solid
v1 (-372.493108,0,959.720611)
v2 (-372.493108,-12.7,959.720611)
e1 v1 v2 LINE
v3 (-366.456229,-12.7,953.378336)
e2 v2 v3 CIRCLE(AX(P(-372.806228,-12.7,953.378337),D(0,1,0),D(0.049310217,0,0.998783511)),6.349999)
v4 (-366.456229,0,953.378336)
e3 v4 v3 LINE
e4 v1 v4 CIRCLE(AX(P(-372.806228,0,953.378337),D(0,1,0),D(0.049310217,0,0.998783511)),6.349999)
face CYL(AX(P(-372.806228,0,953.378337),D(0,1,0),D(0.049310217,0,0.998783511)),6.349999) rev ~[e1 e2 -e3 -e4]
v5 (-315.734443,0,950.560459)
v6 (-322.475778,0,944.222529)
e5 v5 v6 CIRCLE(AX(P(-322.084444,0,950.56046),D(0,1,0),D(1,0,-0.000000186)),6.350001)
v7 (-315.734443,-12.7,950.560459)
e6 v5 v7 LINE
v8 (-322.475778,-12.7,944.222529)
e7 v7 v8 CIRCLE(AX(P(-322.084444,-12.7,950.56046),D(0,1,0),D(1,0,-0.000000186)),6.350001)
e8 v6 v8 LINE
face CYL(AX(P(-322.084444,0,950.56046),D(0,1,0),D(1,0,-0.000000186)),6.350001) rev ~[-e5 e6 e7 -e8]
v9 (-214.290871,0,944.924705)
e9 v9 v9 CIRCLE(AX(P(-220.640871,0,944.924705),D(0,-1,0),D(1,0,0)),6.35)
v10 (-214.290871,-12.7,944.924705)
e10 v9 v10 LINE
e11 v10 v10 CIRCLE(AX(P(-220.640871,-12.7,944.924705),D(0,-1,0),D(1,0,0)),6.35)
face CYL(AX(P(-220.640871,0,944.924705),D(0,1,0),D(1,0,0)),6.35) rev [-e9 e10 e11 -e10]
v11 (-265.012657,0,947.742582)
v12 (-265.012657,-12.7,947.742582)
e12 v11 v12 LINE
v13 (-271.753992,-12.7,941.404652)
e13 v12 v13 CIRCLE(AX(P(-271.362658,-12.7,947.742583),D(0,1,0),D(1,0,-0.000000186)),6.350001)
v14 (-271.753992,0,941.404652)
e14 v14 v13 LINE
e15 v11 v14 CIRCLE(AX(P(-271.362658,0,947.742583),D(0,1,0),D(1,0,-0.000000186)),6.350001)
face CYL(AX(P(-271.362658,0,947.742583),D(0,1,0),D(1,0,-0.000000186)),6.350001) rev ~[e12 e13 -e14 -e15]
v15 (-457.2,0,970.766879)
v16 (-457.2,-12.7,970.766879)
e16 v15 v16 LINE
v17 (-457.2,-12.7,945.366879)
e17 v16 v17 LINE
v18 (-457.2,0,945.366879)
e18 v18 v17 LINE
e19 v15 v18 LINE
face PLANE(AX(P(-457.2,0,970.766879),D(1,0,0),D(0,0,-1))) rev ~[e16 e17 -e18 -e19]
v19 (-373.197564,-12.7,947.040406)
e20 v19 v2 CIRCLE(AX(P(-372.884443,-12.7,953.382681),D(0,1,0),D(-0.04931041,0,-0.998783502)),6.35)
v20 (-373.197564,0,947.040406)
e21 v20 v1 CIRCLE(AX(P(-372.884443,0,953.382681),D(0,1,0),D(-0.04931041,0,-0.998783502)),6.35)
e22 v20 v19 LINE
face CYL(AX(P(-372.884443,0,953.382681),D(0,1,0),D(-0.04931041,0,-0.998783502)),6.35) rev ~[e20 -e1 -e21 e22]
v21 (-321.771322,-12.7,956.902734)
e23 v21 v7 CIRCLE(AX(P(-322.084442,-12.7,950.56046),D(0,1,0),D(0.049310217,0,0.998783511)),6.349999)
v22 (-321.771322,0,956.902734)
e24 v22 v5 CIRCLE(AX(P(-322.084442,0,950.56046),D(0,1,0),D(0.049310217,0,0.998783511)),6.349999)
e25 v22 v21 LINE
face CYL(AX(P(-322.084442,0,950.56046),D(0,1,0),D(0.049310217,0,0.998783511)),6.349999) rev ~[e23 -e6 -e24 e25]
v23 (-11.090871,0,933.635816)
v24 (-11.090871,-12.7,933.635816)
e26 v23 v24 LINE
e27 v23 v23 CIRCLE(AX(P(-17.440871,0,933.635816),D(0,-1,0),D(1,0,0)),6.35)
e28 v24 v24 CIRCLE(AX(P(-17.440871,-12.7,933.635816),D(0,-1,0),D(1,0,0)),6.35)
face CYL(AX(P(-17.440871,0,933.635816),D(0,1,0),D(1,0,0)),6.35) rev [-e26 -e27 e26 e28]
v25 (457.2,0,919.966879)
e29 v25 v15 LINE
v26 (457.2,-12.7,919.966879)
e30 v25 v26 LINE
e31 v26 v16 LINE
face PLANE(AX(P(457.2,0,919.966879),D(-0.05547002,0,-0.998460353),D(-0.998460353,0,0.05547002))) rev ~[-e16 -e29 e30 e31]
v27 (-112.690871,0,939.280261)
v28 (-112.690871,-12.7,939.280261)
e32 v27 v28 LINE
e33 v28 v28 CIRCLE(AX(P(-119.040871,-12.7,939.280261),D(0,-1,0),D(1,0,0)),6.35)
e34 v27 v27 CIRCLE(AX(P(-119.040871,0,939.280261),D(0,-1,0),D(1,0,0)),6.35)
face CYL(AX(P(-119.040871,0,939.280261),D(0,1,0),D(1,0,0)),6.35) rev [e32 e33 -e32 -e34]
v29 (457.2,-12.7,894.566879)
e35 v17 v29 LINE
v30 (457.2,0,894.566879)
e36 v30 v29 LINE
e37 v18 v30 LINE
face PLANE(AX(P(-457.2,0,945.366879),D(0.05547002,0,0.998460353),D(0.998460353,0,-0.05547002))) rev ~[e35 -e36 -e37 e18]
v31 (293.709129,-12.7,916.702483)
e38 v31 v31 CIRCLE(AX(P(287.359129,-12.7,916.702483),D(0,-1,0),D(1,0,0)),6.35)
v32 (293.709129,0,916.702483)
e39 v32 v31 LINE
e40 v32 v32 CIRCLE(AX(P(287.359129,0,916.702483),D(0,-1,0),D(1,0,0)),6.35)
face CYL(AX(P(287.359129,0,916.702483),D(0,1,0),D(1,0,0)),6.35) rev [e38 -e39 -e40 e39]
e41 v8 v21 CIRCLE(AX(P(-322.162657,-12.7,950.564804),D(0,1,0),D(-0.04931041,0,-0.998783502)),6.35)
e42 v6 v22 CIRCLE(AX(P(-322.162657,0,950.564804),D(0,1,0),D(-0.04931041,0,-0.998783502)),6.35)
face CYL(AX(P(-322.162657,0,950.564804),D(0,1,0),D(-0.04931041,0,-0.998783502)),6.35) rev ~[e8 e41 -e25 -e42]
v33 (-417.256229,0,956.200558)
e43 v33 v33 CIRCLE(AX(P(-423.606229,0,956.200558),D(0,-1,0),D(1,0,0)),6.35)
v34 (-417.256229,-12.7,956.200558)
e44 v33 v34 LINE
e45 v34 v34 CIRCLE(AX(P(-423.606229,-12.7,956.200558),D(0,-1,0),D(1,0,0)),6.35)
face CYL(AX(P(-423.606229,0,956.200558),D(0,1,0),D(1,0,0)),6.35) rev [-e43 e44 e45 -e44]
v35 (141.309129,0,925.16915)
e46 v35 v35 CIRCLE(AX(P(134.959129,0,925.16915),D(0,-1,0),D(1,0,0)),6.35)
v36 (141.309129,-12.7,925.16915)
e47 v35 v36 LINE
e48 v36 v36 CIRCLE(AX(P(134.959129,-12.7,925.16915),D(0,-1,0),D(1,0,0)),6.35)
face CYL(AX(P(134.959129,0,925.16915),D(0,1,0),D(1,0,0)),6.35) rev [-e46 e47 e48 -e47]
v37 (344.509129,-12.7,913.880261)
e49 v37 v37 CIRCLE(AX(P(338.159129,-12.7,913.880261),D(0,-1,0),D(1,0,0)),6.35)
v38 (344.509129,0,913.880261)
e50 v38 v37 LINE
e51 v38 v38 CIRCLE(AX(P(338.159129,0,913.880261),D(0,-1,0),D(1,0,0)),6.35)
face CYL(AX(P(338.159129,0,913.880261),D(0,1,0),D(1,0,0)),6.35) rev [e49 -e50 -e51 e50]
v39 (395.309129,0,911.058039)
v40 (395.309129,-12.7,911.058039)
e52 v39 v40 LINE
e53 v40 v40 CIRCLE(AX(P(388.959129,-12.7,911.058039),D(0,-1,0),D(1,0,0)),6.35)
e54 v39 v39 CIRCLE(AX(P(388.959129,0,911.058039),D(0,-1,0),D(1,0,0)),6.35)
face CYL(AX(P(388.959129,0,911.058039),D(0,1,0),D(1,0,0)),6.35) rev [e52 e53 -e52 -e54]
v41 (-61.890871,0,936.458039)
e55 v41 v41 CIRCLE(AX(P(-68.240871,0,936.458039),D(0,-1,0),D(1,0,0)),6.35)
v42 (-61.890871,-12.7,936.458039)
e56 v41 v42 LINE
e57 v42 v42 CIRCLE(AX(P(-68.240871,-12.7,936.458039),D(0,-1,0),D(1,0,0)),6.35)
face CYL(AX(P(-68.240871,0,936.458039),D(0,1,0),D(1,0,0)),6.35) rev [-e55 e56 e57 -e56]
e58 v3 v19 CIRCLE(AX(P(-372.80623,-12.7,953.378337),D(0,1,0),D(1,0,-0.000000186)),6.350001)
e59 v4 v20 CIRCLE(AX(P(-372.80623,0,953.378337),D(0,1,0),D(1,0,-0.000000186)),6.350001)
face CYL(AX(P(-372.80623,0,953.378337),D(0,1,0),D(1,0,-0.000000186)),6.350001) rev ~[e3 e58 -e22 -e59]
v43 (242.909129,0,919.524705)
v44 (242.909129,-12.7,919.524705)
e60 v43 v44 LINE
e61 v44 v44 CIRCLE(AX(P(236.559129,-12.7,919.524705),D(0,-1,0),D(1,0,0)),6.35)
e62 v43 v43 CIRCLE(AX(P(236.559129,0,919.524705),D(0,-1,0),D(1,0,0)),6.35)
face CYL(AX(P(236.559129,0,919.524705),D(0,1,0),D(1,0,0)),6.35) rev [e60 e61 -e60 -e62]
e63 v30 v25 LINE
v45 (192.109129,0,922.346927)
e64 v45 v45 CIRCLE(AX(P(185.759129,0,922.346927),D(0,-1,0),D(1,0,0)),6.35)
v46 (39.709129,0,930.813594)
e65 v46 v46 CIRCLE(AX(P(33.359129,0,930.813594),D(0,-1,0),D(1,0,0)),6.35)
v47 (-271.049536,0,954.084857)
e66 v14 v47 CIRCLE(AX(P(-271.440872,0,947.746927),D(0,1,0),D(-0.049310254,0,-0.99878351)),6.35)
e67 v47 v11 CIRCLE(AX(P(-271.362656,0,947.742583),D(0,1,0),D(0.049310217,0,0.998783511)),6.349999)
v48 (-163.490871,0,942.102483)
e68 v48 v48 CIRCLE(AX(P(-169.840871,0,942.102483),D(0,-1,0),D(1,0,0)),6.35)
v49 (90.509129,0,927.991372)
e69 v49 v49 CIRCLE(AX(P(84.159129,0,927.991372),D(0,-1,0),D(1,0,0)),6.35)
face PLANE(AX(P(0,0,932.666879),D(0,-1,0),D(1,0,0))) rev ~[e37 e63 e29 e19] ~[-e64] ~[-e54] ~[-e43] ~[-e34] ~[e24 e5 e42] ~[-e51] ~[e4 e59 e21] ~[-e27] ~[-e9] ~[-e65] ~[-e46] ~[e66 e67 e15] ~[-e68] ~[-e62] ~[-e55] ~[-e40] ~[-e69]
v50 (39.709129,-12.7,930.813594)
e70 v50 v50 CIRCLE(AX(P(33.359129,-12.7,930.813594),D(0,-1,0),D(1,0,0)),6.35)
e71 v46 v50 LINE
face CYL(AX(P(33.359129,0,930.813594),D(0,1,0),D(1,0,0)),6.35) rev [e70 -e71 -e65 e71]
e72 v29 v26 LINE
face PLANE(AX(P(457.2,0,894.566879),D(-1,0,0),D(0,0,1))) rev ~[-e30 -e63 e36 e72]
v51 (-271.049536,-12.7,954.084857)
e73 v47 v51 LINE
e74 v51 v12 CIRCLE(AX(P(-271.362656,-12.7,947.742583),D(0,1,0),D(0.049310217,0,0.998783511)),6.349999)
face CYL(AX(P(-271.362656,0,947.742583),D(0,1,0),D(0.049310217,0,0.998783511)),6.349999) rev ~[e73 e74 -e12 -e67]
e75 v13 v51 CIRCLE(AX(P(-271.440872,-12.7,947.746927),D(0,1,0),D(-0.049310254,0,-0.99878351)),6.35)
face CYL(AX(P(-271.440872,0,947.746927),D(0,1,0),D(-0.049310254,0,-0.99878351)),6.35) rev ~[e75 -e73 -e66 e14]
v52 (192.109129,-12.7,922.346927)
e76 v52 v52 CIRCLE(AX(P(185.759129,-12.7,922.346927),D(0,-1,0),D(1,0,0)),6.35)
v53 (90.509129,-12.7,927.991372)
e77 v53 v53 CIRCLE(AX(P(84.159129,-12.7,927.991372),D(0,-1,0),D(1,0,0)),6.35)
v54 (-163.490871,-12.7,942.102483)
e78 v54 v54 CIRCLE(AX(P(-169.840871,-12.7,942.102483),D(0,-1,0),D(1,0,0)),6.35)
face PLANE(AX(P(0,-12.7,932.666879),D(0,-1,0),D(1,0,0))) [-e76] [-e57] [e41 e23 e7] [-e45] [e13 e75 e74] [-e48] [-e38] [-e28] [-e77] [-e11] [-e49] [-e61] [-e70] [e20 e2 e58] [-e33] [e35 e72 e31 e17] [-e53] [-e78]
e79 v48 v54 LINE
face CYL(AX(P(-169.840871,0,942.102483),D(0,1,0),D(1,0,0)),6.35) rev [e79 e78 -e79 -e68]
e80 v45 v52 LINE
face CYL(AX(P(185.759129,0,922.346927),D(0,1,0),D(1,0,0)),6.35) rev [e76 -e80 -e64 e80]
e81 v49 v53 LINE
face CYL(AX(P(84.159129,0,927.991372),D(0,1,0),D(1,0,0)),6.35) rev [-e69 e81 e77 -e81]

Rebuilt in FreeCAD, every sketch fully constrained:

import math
import FreeCAD as App
import Part
import Sketcher
from FreeCAD import Vector
Q = App.Units.Quantity


def add_polygon(sketch, points):
    """Adds a closed chain of lines whose ends are joined by coincident constraints."""
    first, n = sketch.GeometryCount, len(points)
    for a, b in zip(points, points[1:] + points[:1]):
        sketch.addGeometry(Part.LineSegment(App.Vector(*a, 0), App.Vector(*b, 0)), False)
    for i in range(n):
        sketch.addConstraint(Sketcher.Constraint("Coincident", first + i, 2, first + (i + 1) % n, 1))

doc = App.newDocument("Part")
body = doc.addObject("PartDesign::Body", "Body")

# Sketch on XZ plane
sketch1 = body.newObject("Sketcher::SketchObject", "Sketch")
sketch1.AttachmentSupport = (doc.getObject("XZ_Plane"), [""])
sketch1.MapMode = "FlatFace"
add_polygon(sketch1, [(457.2, 919.966879), (-457.2, 970.766879), (-457.2, 945.366879), (457.2, 894.566879)])  # lines 0-3
sketch1.addGeometry(Part.Circle(Vector(388.959129, 911.058039, 0), Vector(0, 0, 1), 6.35), False)  # 4
sketch1.addGeometry(Part.Circle(Vector(287.359129, 916.702483, 0), Vector(0, 0, 1), 6.35), False)  # 5
sketch1.addGeometry(Part.Circle(Vector(338.159129, 913.880261, 0), Vector(0, 0, 1), 6.35), False)  # 6
sketch1.addGeometry(Part.Circle(Vector(185.759129, 922.346927, 0), Vector(0, 0, 1), 6.35), False)  # 7
sketch1.addGeometry(Part.Circle(Vector(134.959129, 925.16915, 0), Vector(0, 0, 1), 6.35), False)  # 8
sketch1.addGeometry(Part.Circle(Vector(84.159129, 927.991372, 0), Vector(0, 0, 1), 6.35), False)  # 9
sketch1.addGeometry(Part.Circle(Vector(33.359129, 930.813594, 0), Vector(0, 0, 1), 6.35), False)  # 10
sketch1.addGeometry(Part.Circle(Vector(236.559129, 919.524705, 0), Vector(0, 0, 1), 6.35), False)  # 11
sketch1.addGeometry(Part.ArcOfCircle(Part.Circle(Vector(-271.440872, 947.746927, 0), Vector(0, 0, 1), 6.35), math.radians(86.466754), math.radians(267.173584)), False)  # 12
sketch1.addGeometry(Part.ArcOfCircle(Part.Circle(Vector(-271.362656, 947.742583, 0), Vector(0, 0, 1), 6.349999), math.radians(-0.000008), math.radians(87.173586)), False)  # 13
sketch1.addGeometry(Part.ArcOfCircle(Part.Circle(Vector(-271.362658, 947.742583, 0), Vector(0, 0, 1), 6.350001), math.radians(-93.533227), math.radians(-0.000011)), False)  # 14
sketch1.addGeometry(Part.Circle(Vector(-17.440871, 933.635816, 0), Vector(0, 0, 1), 6.35), False)  # 15
sketch1.addGeometry(Part.Circle(Vector(-68.240871, 936.458039, 0), Vector(0, 0, 1), 6.35), False)  # 16
sketch1.addGeometry(Part.Circle(Vector(-119.040871, 939.280261, 0), Vector(0, 0, 1), 6.35), False)  # 17
sketch1.addGeometry(Part.Circle(Vector(-169.840871, 942.102483, 0), Vector(0, 0, 1), 6.35), False)  # 18
sketch1.addGeometry(Part.Circle(Vector(-220.640871, 944.924705, 0), Vector(0, 0, 1), 6.35), False)  # 19
sketch1.addGeometry(Part.ArcOfCircle(Part.Circle(Vector(-372.884443, 953.382681, 0), Vector(0, 0, 1), 6.35), math.radians(86.466763), math.radians(267.173575)), False)  # 20
sketch1.addGeometry(Part.ArcOfCircle(Part.Circle(Vector(-372.806228, 953.378337, 0), Vector(0, 0, 1), 6.349999), math.radians(-0.000008), math.radians(87.173586)), False)  # 21
sketch1.addGeometry(Part.ArcOfCircle(Part.Circle(Vector(-372.80623, 953.378337, 0), Vector(0, 0, 1), 6.350001), math.radians(-93.533227), math.radians(-0.000011)), False)  # 22
sketch1.addGeometry(Part.ArcOfCircle(Part.Circle(Vector(-322.162657, 950.564804, 0), Vector(0, 0, 1), 6.35), math.radians(86.466763), math.radians(267.173575)), False)  # 23
sketch1.addGeometry(Part.ArcOfCircle(Part.Circle(Vector(-322.084442, 950.56046, 0), Vector(0, 0, 1), 6.349999), math.radians(-0.000008), math.radians(87.173586)), False)  # 24
sketch1.addGeometry(Part.ArcOfCircle(Part.Circle(Vector(-322.084444, 950.56046, 0), Vector(0, 0, 1), 6.350001), math.radians(-93.533227), math.radians(-0.000011)), False)  # 25
sketch1.addGeometry(Part.Circle(Vector(-423.606229, 956.200558, 0), Vector(0, 0, 1), 6.35), False)  # 26
sketch1.addConstraint(Sketcher.Constraint("Coincident", 12, 1, 13, 2))
sketch1.addConstraint(Sketcher.Constraint("Coincident", 13, 1, 14, 2))
sketch1.addConstraint(Sketcher.Constraint("Coincident", 14, 1, 12, 2))
sketch1.addConstraint(Sketcher.Constraint("Coincident", 20, 1, 21, 2))
sketch1.addConstraint(Sketcher.Constraint("Coincident", 21, 1, 22, 2))
sketch1.addConstraint(Sketcher.Constraint("Coincident", 22, 1, 20, 2))
sketch1.addConstraint(Sketcher.Constraint("Coincident", 23, 1, 24, 2))
sketch1.addConstraint(Sketcher.Constraint("Coincident", 24, 1, 25, 2))
sketch1.addConstraint(Sketcher.Constraint("Coincident", 25, 1, 23, 2))
sketch1.addConstraint(Sketcher.Constraint("Vertical", 1))
sketch1.addConstraint(Sketcher.Constraint("Vertical", 3))
sketch1.addConstraint(Sketcher.Constraint("Coincident", 14, 3, 13, 3))
sketch1.addConstraint(Sketcher.Constraint("Coincident", 22, 3, 21, 3))
sketch1.addConstraint(Sketcher.Constraint("Coincident", 25, 3, 24, 3))
sketch1.addConstraint(Sketcher.Constraint("Diameter", 4, Q("0.5 in")))
sketch1.addConstraint(Sketcher.Constraint("Diameter", 5, Q("0.5 in")))
sketch1.addConstraint(Sketcher.Constraint("Diameter", 6, Q("0.5 in")))
sketch1.addConstraint(Sketcher.Constraint("Diameter", 7, Q("0.5 in")))
sketch1.addConstraint(Sketcher.Constraint("Diameter", 8, Q("0.5 in")))
sketch1.addConstraint(Sketcher.Constraint("Diameter", 9, Q("0.5 in")))
sketch1.addConstraint(Sketcher.Constraint("Diameter", 10, Q("0.5 in")))
sketch1.addConstraint(Sketcher.Constraint("Diameter", 11, Q("0.5 in")))
sketch1.addConstraint(Sketcher.Constraint("Diameter", 15, Q("0.5 in")))
sketch1.addConstraint(Sketcher.Constraint("Diameter", 16, Q("0.5 in")))
sketch1.addConstraint(Sketcher.Constraint("Diameter", 17, Q("0.5 in")))
sketch1.addConstraint(Sketcher.Constraint("Diameter", 18, Q("0.5 in")))
sketch1.addConstraint(Sketcher.Constraint("Diameter", 19, Q("0.5 in")))
sketch1.addConstraint(Sketcher.Constraint("Diameter", 26, Q("0.5 in")))
sketch1.addConstraint(Sketcher.Constraint("DistanceY", 1, 2, 1, 1, Q("1 in")))
sketch1.addConstraint(Sketcher.Constraint("DistanceY", 3, 1, 3, 2, Q("1 in")))
sketch1.addConstraint(Sketcher.Constraint("Radius", 12, Q("0.25 in")))
sketch1.addConstraint(Sketcher.Constraint("Radius", 13, Q("0.25 in")))
sketch1.addConstraint(Sketcher.Constraint("Radius", 20, Q("0.25 in")))
sketch1.addConstraint(Sketcher.Constraint("Radius", 21, Q("0.25 in")))
sketch1.addConstraint(Sketcher.Constraint("Radius", 23, Q("0.25 in")))
sketch1.addConstraint(Sketcher.Constraint("Radius", 24, Q("0.25 in")))
sketch1.addConstraint(Sketcher.Constraint("DistanceX", 0, 2, -1, 1, Q("18 in")))
sketch1.addConstraint(Sketcher.Constraint("DistanceX", -1, 1, 2, 2, Q("18 in")))
sketch1.addConstraint(Sketcher.Constraint("DistanceX", 5, 3, 4, 3, Q("4 in")))
sketch1.addConstraint(Sketcher.Constraint("DistanceX", 6, 3, 4, 3, Q("2 in")))
sketch1.addConstraint(Sketcher.Constraint("DistanceX", 7, 3, 5, 3, Q("4 in")))
sketch1.addConstraint(Sketcher.Constraint("DistanceX", 8, 3, 7, 3, Q("2 in")))
sketch1.addConstraint(Sketcher.Constraint("DistanceX", 9, 3, 8, 3, Q("2 in")))
sketch1.addConstraint(Sketcher.Constraint("DistanceX", 10, 3, 9, 3, Q("2 in")))
sketch1.addConstraint(Sketcher.Constraint("DistanceX", 11, 3, 5, 3, Q("2 in")))
sketch1.addConstraint(Sketcher.Constraint("DistanceX", 12, 3, 10, 3, Q("12 in")))
sketch1.addConstraint(Sketcher.Constraint("DistanceY", 7, 3, 12, 3, Q("1 in")))
sketch1.addConstraint(Sketcher.Constraint("DistanceX", 15, 3, 10, 3, Q("2 in")))
sketch1.addConstraint(Sketcher.Constraint("DistanceX", 16, 3, 15, 3, Q("2 in")))
sketch1.addConstraint(Sketcher.Constraint("DistanceX", 17, 3, 16, 3, Q("2 in")))
sketch1.addConstraint(Sketcher.Constraint("DistanceX", 18, 3, 17, 3, Q("2 in")))
sketch1.addConstraint(Sketcher.Constraint("DistanceX", 19, 3, 18, 3, Q("2 in")))
sketch1.addConstraint(Sketcher.Constraint("DistanceX", 23, 3, 14, 3, Q("2 in")))
sketch1.addConstraint(Sketcher.Constraint("DistanceX", 26, 3, 22, 3, Q("2 in")))
sketch1.addConstraint(Sketcher.Constraint("DistanceY", -1, 1, 13, 3, Q("37.3127001 in")))
sketch1.addConstraint(Sketcher.Constraint("DistanceY", -1, 1, 13, 1, Q("37.3127001 in")))
sketch1.addConstraint(Sketcher.Constraint("DistanceY", 18, 3, 13, 3, Q("5.6401 mm")))
sketch1.addConstraint(Sketcher.Constraint("DistanceY", 13, 3, 20, 3, Q("5.640098 mm")))
sketch1.addConstraint(Sketcher.Constraint("DistanceY", 21, 1, 23, 1, Q("3.524398 mm")))
sketch1.addConstraint(Sketcher.Constraint("DistanceX", -1, 1, 4, 3, Q("388.959129 mm")))
sketch1.addConstraint(Sketcher.Constraint("DistanceY", -1, 1, 4, 3, Q("911.058039 mm")))
sketch1.addConstraint(Sketcher.Constraint("DistanceY", -1, 1, 6, 3, Q("913.880261 mm")))
sketch1.addConstraint(Sketcher.Constraint("DistanceY", -1, 1, 8, 3, Q("925.16915 mm")))
sketch1.addConstraint(Sketcher.Constraint("DistanceY", -1, 1, 9, 3, Q("927.991372 mm")))
sketch1.addConstraint(Sketcher.Constraint("DistanceX", 14, 3, -1, 1, Q("271.362658 mm")))
sketch1.addConstraint(Sketcher.Constraint("DistanceY", -1, 1, 16, 3, Q("936.458039 mm")))
sketch1.addConstraint(Sketcher.Constraint("DistanceY", -1, 1, 17, 3, Q("939.280261 mm")))
sketch1.addConstraint(Sketcher.Constraint("DistanceX", 22, 3, -1, 1, Q("372.80623 mm")))
sketch1.addConstraint(Sketcher.Constraint("DistanceX", 24, 3, -1, 1, Q("322.084442 mm")))
sketch1.addConstraint(Sketcher.Constraint("DistanceY", -1, 1, 24, 3, Q("950.56046 mm")))
sketch1.addConstraint(Sketcher.Constraint("DistanceY", -1, 1, 26, 3, Q("956.200558 mm")))
sketch1.addConstraint(Sketcher.Constraint("DistanceY", -1, 1, 0, 2, Q("970.766879 mm")))
sketch1.addConstraint(Sketcher.Constraint("DistanceY", -1, 1, 2, 2, Q("894.566879 mm")))
sketch1.addConstraint(Sketcher.Constraint("DistanceY", -1, 1, 14, 1, Q("941.404652 mm")))
sketch1.addConstraint(Sketcher.Constraint("DistanceY", -1, 1, 20, 1, Q("959.720611 mm")))
sketch1.addConstraint(Sketcher.Constraint("DistanceX", 23, 1, -1, 1, Q("321.771322 mm")))
sketch1.addConstraint(Sketcher.Constraint("DistanceY", -1, 1, 24, 1, Q("950.560459 mm")))
sketch1.addConstraint(Sketcher.Constraint("DistanceY", 5, 3, 9, 3, Q("11.288889 mm")))
sketch1.addConstraint(Sketcher.Constraint("DistanceY", 5, 3, 10, 3, Q("14.111111 mm")))
sketch1.addConstraint(Sketcher.Constraint("DistanceY", 7, 3, 15, 3, Q("11.288889 mm")))
sketch1.addConstraint(Sketcher.Constraint("DistanceY", 19, 3, 14, 3, Q("2.817878 mm")))
sketch1.addConstraint(Sketcher.Constraint("DistanceX", 20, 3, 12, 3, Q("101.443571 mm")))
sketch1.addConstraint(Sketcher.Constraint("DistanceY", -1, 1, 11, 3, Q("919.524705 mm")))
pad1 = body.newObject("PartDesign::Pad", "Pad")
pad1.Profile = sketch1
pad1.Length = Q("0.5 in")

doc.recompute()
